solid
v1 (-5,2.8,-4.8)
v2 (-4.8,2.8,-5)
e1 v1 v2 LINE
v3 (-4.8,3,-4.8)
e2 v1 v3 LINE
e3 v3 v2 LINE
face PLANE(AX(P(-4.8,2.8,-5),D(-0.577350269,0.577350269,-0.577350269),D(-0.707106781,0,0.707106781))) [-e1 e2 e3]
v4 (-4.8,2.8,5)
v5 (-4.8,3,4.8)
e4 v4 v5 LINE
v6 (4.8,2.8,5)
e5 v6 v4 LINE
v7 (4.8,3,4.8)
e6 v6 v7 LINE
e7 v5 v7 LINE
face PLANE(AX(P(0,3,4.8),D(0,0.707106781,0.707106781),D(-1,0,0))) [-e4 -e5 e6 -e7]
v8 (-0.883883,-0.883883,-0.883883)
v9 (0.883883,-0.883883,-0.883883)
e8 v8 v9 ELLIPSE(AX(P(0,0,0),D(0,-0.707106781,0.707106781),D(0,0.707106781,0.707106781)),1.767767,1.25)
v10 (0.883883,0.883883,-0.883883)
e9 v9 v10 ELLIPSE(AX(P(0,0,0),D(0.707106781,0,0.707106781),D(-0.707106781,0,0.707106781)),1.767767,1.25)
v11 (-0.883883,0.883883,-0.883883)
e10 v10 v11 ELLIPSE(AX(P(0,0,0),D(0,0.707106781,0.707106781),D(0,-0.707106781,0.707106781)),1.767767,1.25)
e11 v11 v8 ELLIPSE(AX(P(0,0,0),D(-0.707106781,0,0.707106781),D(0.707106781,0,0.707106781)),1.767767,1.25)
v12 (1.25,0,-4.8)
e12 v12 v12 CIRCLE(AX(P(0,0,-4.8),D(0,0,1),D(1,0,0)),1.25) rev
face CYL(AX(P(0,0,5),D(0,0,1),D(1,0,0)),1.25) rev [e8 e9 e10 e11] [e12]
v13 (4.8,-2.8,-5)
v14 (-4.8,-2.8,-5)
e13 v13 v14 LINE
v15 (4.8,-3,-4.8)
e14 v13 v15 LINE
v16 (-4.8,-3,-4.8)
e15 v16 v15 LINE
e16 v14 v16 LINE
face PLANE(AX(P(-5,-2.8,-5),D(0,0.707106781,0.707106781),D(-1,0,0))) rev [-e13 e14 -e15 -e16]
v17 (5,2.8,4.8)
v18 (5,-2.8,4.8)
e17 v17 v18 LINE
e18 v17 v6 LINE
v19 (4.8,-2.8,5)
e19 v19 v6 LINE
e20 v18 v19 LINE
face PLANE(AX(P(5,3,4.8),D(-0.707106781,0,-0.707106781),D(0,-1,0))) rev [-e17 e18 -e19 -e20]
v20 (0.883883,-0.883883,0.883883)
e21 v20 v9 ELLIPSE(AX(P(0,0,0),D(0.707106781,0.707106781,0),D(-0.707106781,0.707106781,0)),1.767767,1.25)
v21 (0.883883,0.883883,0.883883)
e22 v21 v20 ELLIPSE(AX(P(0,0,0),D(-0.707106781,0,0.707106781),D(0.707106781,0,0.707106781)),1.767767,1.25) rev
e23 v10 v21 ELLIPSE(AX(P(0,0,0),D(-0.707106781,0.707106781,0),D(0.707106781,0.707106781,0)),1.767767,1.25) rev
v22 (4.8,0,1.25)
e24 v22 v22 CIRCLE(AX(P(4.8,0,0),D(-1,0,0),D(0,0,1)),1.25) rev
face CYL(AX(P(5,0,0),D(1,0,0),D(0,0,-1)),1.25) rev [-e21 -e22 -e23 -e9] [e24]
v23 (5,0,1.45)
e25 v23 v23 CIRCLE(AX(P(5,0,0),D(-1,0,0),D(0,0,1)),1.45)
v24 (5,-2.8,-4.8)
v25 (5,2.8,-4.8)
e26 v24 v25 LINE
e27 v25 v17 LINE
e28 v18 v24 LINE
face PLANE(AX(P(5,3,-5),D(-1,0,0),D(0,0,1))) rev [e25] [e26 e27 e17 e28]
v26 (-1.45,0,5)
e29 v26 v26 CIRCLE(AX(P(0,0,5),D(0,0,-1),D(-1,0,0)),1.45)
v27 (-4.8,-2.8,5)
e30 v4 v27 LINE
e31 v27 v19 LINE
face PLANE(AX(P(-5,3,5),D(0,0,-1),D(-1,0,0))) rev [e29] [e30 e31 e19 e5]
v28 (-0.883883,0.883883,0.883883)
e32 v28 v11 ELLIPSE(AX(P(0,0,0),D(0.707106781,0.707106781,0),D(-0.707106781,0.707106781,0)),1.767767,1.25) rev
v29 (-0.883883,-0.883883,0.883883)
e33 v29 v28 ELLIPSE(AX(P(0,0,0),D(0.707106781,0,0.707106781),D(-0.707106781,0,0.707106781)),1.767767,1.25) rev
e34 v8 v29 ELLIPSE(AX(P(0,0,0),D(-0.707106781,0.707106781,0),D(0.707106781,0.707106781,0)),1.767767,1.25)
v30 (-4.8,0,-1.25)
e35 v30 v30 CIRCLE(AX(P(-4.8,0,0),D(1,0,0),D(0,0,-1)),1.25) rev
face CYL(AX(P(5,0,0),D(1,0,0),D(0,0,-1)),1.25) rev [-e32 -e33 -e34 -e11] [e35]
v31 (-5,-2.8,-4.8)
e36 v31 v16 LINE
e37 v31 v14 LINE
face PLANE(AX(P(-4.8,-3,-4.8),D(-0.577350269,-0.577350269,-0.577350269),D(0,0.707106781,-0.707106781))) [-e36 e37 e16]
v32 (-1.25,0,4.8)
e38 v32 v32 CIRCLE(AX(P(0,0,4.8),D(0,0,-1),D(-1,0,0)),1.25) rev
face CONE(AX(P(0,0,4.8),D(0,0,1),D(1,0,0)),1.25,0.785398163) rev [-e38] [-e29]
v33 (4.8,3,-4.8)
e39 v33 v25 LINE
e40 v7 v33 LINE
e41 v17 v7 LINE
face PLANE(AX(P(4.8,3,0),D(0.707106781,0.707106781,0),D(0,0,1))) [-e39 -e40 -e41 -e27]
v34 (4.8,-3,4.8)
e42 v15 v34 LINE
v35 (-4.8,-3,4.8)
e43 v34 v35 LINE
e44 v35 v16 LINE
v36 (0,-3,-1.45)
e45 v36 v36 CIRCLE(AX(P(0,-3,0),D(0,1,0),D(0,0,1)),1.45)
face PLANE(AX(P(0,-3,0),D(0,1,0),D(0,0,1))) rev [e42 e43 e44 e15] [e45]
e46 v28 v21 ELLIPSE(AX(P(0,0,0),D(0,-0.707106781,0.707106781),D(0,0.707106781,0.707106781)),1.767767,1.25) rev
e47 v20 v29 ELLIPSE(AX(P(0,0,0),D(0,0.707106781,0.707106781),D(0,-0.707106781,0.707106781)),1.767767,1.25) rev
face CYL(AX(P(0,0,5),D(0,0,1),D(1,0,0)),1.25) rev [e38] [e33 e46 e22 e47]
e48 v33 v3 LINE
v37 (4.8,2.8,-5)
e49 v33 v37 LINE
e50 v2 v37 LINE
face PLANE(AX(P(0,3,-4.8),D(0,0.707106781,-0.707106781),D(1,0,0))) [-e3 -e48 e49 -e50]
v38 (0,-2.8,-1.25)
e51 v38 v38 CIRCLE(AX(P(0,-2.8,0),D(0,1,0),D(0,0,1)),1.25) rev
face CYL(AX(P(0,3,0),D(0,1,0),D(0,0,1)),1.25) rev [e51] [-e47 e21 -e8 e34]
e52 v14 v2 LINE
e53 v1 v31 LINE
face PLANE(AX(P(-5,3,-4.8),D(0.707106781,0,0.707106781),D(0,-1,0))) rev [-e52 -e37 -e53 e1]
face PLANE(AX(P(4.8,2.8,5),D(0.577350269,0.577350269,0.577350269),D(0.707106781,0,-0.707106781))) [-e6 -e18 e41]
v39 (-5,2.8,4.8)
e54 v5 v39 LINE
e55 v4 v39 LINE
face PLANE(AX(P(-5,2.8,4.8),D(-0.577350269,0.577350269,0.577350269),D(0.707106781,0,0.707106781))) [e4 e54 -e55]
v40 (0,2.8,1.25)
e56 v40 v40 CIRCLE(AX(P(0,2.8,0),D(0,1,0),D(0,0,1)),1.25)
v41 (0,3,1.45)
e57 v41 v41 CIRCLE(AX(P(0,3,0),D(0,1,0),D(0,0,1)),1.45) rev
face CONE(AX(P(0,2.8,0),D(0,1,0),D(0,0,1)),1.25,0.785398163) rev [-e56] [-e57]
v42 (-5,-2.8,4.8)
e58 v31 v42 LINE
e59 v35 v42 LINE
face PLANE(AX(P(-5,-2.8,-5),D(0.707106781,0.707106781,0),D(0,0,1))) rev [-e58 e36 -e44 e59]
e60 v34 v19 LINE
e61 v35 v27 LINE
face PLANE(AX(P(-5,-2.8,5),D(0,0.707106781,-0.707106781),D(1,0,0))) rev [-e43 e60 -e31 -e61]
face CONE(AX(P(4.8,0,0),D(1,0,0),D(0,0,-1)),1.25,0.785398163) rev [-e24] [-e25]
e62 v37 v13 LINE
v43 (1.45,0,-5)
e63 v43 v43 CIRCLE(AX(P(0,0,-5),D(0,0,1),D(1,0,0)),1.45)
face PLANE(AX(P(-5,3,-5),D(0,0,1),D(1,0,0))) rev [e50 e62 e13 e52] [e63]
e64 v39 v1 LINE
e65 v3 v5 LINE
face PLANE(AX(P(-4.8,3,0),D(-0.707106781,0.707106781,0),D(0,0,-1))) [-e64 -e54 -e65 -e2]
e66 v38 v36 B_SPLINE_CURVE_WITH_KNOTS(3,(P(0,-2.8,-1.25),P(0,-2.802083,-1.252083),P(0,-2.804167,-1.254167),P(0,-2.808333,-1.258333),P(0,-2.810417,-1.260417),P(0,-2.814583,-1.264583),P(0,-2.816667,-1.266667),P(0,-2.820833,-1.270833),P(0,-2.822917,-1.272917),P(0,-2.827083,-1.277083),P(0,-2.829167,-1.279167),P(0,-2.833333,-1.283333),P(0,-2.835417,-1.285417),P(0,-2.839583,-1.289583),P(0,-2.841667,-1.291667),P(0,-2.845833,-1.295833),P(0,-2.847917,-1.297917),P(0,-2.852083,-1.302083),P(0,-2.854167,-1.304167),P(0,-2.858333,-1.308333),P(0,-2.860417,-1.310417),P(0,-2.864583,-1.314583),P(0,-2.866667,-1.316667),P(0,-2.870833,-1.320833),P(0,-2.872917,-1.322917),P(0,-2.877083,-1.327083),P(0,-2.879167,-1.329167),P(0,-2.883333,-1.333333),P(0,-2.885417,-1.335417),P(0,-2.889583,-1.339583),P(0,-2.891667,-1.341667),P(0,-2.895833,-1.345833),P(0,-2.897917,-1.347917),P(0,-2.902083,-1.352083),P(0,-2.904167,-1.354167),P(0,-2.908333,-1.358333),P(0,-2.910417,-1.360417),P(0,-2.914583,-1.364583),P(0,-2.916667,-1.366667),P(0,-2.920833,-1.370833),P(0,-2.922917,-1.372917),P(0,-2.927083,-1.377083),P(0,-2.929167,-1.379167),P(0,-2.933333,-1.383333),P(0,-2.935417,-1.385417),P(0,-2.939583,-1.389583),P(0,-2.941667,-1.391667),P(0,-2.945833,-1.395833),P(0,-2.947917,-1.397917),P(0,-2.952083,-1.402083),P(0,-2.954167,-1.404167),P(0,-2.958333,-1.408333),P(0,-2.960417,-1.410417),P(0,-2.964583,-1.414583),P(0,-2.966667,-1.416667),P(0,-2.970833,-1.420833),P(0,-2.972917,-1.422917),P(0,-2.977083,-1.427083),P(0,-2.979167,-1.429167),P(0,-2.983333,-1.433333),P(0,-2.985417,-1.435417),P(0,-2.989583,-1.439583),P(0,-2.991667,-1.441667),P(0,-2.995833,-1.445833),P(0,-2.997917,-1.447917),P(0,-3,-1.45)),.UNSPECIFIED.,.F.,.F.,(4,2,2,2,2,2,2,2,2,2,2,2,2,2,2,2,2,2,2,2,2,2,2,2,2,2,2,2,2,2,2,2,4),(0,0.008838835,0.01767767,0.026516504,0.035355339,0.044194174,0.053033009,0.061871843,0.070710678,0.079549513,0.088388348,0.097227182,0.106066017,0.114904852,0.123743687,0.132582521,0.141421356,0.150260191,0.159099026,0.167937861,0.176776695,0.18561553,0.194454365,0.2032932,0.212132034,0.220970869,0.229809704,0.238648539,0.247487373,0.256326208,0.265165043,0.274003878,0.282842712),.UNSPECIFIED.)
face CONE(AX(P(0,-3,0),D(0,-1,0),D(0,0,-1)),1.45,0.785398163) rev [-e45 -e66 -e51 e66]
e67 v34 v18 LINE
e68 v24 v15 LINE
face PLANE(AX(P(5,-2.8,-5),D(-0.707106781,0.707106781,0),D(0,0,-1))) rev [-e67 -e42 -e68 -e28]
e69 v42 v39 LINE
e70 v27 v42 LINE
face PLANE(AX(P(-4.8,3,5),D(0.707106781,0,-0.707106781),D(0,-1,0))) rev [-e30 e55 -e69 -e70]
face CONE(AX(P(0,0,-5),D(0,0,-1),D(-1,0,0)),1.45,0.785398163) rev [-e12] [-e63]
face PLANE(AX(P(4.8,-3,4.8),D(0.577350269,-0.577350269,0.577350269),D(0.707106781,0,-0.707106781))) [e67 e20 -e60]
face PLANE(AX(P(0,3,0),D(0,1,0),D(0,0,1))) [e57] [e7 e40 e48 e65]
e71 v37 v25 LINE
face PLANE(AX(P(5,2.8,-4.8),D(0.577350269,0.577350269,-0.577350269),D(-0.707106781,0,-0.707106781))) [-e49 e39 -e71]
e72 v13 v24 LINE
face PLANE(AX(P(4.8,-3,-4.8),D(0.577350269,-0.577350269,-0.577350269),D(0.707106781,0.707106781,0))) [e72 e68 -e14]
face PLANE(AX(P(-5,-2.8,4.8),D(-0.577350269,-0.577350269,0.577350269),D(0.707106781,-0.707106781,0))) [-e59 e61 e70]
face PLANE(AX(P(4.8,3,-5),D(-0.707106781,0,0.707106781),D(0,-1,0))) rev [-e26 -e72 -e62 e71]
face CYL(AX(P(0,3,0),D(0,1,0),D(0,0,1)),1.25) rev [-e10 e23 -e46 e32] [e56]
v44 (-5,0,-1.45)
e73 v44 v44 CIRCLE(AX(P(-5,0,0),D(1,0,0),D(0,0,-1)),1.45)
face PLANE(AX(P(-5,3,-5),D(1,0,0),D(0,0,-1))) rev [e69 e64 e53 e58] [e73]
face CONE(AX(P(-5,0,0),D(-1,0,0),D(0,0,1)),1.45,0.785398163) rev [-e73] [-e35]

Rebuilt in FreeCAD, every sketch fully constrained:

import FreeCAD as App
import Part
import Sketcher


def edges_at(feature, points):
    """Names of the edges that pass closest to the given points."""
    edges = feature.Shape.Edges
    near = lambda p: min(range(len(edges)), key=lambda i: edges[i].distToShape(Part.Vertex(*p))[0])
    return sorted({f"Edge{near(p) + 1}" for p in points})


def add_polygon(sketch, points):
    """Adds a closed chain of lines whose ends are joined by coincident constraints."""
    first, n = sketch.GeometryCount, len(points)
    for a, b in zip(points, points[1:] + points[:1]):
        sketch.addGeometry(Part.LineSegment(App.Vector(*a, 0), App.Vector(*b, 0)), False)
    for i in range(n):
        sketch.addConstraint(Sketcher.Constraint("Coincident", first + i, 2, first + (i + 1) % n, 1))

doc = App.newDocument("Part")
body = doc.addObject("PartDesign::Body", "Body")

sketch1 = doc.addObject("Sketcher::SketchObject", "Sketch")
body.addObject(sketch1)
sketch1.AttachmentSupport = (doc.XZ_Plane, [""])
sketch1.MapMode = "FlatFace"
add_polygon(sketch1, [(-5, -5), (-5, 5), (5, 5), (5, -5)])
sketch1.addConstraint(Sketcher.Constraint("Vertical", 0))
sketch1.addConstraint(Sketcher.Constraint("Horizontal", 1))
sketch1.addConstraint(Sketcher.Constraint("Vertical", 2))
sketch1.addConstraint(Sketcher.Constraint("Horizontal", 3))
sketch1.addConstraint(Sketcher.Constraint("Symmetric", 0, 2, 2, 2, -1, 1))
sketch1.addConstraint(Sketcher.Constraint("Equal", 3, 0))
sketch1.addConstraint(Sketcher.Constraint("DistanceX", 1, 1, 1, 2, 10.0))
pad1 = doc.addObject("PartDesign::Pad", "Pad")
body.addObject(pad1)
pad1.Profile = sketch1
pad1.Length = 6
pad1.Midplane = True

sketch2 = doc.addObject("Sketcher::SketchObject", "Sketch001")
body.addObject(sketch2)
sketch2.AttachmentSupport = (doc.XY_Plane, [""])
sketch2.MapMode = "FlatFace"
sketch2.AttachmentOffset = App.Placement(App.Vector(0, 0, 5), App.Rotation())
sketch2.addGeometry(Part.Circle(App.Vector(0, 0, 0), App.Vector(0, 0, 1), 1.25), False)
sketch2.addConstraint(Sketcher.Constraint("Coincident", 0, 3, -1, 1))
sketch2.addConstraint(Sketcher.Constraint("Diameter", 0, 2.5))
doc.recompute()
hole = doc.addObject("PartDesign::Hole", "Hole")
body.addObject(hole)
hole.Profile = sketch2
hole.ThreadType = "None"
hole.Diameter = 2.5
hole.DepthType = "ThroughAll"

sketch3 = doc.addObject("Sketcher::SketchObject", "Sketch002")
body.addObject(sketch3)
sketch3.AttachmentSupport = (doc.XZ_Plane, [""])
sketch3.MapMode = "FlatFace"
sketch3.AttachmentOffset = App.Placement(App.Vector(0, 0, -3), App.Rotation())
sketch3.addGeometry(Part.Circle(App.Vector(0, 0, 0), App.Vector(0, 0, 1), 1.25), False)
sketch3.addConstraint(Sketcher.Constraint("Coincident", 0, 3, -1, 1))
sketch3.addConstraint(Sketcher.Constraint("Diameter", 0, 2.5))
doc.recompute()
hole2 = doc.addObject("PartDesign::Hole", "Hole001")
body.addObject(hole2)
hole2.Profile = sketch3
hole2.ThreadType = "None"
hole2.Diameter = 2.5
hole2.DepthType = "ThroughAll"
hole2.Reversed = True

sketch4 = doc.addObject("Sketcher::SketchObject", "Sketch003")
body.addObject(sketch4)
sketch4.AttachmentSupport = (doc.YZ_Plane, [""])
sketch4.MapMode = "FlatFace"
sketch4.AttachmentOffset = App.Placement(App.Vector(0, 0, 5), App.Rotation())
sketch4.addGeometry(Part.Circle(App.Vector(0, 0, 0), App.Vector(0, 0, 1), 1.25), False)
sketch4.addConstraint(Sketcher.Constraint("Coincident", 0, 3, -1, 1))
sketch4.addConstraint(Sketcher.Constraint("Diameter", 0, 2.5))
doc.recompute()
hole3 = doc.addObject("PartDesign::Hole", "Hole002")
body.addObject(hole3)
hole3.Profile = sketch4
hole3.ThreadType = "None"
hole3.Diameter = 2.5
hole3.DepthType = "ThroughAll"
doc.recompute()

chamfer = doc.addObject("PartDesign::Chamfer", "Chamfer")
body.addObject(chamfer)
chamfer.Base = (hole3, edges_at(hole3, [
    (-5, 3, 0),
    (1.25, 0, 5),
    (1.25, 0, -5),
    (0, 3, 5),
    (1.25, -3, 0),
    (1.25, 3, 0),
    (-5, 0, -1.25),
    (5, 0, -1.25),
    (5, 3, 0),
    (0, -3, 5),
    (-5, -3, 0),
    (0, -3, -5),
    (5, -3, 0),
    (5, 0, 5),
    (-5, 0, 5),
    (-5, 0, -5),
    (5, 0, -5),
    (0, 3, -5),
]))
chamfer.Size = 0.2

doc.recompute()
